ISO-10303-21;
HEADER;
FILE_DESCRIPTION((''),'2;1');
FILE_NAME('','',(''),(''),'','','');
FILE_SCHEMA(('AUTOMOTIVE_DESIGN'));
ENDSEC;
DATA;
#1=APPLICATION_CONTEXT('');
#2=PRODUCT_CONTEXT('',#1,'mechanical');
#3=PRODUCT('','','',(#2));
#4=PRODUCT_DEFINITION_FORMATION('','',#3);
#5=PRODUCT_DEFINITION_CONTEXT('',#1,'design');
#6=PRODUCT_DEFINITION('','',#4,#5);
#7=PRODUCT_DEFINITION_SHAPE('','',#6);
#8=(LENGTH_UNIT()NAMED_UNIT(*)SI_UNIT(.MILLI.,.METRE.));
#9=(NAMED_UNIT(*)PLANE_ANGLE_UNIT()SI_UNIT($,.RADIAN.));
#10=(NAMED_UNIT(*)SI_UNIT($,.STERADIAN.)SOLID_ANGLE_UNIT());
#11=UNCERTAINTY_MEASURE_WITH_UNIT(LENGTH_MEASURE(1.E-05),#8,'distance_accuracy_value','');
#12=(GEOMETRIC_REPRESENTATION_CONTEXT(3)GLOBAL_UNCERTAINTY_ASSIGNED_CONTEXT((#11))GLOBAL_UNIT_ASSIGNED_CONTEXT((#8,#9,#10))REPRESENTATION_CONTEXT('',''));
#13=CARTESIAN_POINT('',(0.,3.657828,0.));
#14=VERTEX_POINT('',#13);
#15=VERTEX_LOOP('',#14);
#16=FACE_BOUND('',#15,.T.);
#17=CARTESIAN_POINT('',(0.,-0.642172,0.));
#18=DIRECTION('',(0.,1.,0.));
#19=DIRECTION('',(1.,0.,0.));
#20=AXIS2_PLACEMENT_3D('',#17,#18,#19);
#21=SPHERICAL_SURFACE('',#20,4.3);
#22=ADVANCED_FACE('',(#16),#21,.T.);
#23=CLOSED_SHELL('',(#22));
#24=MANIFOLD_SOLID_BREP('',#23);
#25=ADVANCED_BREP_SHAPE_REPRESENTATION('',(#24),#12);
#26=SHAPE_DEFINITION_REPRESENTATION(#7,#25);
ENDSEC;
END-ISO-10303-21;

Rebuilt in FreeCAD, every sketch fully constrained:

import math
import FreeCAD as App
import Part
import Sketcher
from FreeCAD import Vector

doc = App.newDocument("Part")
params = doc.addObject("Spreadsheet::Sheet", "Params")
for row, (alias, value) in enumerate([
    ("sketch1_radius", "4.3 mm"),
    ("revolution_angle", "360 deg"),
], start=1):
    params.set(f"A{row}", alias)
    params.set(f"B{row}", "=" + value)
    params.setAlias(f"B{row}", alias)

body = doc.addObject("PartDesign::Body", "Body")

# Sketch on XY plane
sketch1 = body.newObject("Sketcher::SketchObject", "Sketch")
sketch1.AttachmentSupport = (doc.getObject("XY_Plane"), [""])
sketch1.MapMode = "FlatFace"
sketch1.addGeometry(Part.LineSegment(Vector(0, 3.657828, 0), Vector(0, -4.942172, 0)), False)
sketch1.addGeometry(Part.ArcOfCircle(Part.Circle(Vector(0, -0.642172, 0), Vector(0, 0, 1), 4.3), math.radians(-90), math.radians(90)), False)
sketch1.addConstraint(Sketcher.Constraint("Coincident", 0, 1, 1, 2))
sketch1.addConstraint(Sketcher.Constraint("Coincident", 1, 1, 0, 2))
sketch1.addConstraint(Sketcher.Constraint("Vertical", 0))
sketch1.addConstraint(Sketcher.Constraint("PointOnObject", 1, 3, -2))
sketch1.addConstraint(Sketcher.Constraint("PointOnObject", 0, 1, -2))
sketch1.addConstraint(Sketcher.Constraint("Radius", 1, 4.3))
sketch1.addConstraint(Sketcher.Constraint("DistanceY", 1, 3, -1, 1, 0.642172))
sketch1.setExpression("Constraints[5]", "Params.sketch1_radius")
revolution = body.newObject("PartDesign::Revolution", "Revolution")
revolution.Profile = sketch1
revolution.ReferenceAxis = (sketch1, ["V_Axis"])
revolution.setExpression("Angle", "Params.revolution_angle")

doc.recompute()
